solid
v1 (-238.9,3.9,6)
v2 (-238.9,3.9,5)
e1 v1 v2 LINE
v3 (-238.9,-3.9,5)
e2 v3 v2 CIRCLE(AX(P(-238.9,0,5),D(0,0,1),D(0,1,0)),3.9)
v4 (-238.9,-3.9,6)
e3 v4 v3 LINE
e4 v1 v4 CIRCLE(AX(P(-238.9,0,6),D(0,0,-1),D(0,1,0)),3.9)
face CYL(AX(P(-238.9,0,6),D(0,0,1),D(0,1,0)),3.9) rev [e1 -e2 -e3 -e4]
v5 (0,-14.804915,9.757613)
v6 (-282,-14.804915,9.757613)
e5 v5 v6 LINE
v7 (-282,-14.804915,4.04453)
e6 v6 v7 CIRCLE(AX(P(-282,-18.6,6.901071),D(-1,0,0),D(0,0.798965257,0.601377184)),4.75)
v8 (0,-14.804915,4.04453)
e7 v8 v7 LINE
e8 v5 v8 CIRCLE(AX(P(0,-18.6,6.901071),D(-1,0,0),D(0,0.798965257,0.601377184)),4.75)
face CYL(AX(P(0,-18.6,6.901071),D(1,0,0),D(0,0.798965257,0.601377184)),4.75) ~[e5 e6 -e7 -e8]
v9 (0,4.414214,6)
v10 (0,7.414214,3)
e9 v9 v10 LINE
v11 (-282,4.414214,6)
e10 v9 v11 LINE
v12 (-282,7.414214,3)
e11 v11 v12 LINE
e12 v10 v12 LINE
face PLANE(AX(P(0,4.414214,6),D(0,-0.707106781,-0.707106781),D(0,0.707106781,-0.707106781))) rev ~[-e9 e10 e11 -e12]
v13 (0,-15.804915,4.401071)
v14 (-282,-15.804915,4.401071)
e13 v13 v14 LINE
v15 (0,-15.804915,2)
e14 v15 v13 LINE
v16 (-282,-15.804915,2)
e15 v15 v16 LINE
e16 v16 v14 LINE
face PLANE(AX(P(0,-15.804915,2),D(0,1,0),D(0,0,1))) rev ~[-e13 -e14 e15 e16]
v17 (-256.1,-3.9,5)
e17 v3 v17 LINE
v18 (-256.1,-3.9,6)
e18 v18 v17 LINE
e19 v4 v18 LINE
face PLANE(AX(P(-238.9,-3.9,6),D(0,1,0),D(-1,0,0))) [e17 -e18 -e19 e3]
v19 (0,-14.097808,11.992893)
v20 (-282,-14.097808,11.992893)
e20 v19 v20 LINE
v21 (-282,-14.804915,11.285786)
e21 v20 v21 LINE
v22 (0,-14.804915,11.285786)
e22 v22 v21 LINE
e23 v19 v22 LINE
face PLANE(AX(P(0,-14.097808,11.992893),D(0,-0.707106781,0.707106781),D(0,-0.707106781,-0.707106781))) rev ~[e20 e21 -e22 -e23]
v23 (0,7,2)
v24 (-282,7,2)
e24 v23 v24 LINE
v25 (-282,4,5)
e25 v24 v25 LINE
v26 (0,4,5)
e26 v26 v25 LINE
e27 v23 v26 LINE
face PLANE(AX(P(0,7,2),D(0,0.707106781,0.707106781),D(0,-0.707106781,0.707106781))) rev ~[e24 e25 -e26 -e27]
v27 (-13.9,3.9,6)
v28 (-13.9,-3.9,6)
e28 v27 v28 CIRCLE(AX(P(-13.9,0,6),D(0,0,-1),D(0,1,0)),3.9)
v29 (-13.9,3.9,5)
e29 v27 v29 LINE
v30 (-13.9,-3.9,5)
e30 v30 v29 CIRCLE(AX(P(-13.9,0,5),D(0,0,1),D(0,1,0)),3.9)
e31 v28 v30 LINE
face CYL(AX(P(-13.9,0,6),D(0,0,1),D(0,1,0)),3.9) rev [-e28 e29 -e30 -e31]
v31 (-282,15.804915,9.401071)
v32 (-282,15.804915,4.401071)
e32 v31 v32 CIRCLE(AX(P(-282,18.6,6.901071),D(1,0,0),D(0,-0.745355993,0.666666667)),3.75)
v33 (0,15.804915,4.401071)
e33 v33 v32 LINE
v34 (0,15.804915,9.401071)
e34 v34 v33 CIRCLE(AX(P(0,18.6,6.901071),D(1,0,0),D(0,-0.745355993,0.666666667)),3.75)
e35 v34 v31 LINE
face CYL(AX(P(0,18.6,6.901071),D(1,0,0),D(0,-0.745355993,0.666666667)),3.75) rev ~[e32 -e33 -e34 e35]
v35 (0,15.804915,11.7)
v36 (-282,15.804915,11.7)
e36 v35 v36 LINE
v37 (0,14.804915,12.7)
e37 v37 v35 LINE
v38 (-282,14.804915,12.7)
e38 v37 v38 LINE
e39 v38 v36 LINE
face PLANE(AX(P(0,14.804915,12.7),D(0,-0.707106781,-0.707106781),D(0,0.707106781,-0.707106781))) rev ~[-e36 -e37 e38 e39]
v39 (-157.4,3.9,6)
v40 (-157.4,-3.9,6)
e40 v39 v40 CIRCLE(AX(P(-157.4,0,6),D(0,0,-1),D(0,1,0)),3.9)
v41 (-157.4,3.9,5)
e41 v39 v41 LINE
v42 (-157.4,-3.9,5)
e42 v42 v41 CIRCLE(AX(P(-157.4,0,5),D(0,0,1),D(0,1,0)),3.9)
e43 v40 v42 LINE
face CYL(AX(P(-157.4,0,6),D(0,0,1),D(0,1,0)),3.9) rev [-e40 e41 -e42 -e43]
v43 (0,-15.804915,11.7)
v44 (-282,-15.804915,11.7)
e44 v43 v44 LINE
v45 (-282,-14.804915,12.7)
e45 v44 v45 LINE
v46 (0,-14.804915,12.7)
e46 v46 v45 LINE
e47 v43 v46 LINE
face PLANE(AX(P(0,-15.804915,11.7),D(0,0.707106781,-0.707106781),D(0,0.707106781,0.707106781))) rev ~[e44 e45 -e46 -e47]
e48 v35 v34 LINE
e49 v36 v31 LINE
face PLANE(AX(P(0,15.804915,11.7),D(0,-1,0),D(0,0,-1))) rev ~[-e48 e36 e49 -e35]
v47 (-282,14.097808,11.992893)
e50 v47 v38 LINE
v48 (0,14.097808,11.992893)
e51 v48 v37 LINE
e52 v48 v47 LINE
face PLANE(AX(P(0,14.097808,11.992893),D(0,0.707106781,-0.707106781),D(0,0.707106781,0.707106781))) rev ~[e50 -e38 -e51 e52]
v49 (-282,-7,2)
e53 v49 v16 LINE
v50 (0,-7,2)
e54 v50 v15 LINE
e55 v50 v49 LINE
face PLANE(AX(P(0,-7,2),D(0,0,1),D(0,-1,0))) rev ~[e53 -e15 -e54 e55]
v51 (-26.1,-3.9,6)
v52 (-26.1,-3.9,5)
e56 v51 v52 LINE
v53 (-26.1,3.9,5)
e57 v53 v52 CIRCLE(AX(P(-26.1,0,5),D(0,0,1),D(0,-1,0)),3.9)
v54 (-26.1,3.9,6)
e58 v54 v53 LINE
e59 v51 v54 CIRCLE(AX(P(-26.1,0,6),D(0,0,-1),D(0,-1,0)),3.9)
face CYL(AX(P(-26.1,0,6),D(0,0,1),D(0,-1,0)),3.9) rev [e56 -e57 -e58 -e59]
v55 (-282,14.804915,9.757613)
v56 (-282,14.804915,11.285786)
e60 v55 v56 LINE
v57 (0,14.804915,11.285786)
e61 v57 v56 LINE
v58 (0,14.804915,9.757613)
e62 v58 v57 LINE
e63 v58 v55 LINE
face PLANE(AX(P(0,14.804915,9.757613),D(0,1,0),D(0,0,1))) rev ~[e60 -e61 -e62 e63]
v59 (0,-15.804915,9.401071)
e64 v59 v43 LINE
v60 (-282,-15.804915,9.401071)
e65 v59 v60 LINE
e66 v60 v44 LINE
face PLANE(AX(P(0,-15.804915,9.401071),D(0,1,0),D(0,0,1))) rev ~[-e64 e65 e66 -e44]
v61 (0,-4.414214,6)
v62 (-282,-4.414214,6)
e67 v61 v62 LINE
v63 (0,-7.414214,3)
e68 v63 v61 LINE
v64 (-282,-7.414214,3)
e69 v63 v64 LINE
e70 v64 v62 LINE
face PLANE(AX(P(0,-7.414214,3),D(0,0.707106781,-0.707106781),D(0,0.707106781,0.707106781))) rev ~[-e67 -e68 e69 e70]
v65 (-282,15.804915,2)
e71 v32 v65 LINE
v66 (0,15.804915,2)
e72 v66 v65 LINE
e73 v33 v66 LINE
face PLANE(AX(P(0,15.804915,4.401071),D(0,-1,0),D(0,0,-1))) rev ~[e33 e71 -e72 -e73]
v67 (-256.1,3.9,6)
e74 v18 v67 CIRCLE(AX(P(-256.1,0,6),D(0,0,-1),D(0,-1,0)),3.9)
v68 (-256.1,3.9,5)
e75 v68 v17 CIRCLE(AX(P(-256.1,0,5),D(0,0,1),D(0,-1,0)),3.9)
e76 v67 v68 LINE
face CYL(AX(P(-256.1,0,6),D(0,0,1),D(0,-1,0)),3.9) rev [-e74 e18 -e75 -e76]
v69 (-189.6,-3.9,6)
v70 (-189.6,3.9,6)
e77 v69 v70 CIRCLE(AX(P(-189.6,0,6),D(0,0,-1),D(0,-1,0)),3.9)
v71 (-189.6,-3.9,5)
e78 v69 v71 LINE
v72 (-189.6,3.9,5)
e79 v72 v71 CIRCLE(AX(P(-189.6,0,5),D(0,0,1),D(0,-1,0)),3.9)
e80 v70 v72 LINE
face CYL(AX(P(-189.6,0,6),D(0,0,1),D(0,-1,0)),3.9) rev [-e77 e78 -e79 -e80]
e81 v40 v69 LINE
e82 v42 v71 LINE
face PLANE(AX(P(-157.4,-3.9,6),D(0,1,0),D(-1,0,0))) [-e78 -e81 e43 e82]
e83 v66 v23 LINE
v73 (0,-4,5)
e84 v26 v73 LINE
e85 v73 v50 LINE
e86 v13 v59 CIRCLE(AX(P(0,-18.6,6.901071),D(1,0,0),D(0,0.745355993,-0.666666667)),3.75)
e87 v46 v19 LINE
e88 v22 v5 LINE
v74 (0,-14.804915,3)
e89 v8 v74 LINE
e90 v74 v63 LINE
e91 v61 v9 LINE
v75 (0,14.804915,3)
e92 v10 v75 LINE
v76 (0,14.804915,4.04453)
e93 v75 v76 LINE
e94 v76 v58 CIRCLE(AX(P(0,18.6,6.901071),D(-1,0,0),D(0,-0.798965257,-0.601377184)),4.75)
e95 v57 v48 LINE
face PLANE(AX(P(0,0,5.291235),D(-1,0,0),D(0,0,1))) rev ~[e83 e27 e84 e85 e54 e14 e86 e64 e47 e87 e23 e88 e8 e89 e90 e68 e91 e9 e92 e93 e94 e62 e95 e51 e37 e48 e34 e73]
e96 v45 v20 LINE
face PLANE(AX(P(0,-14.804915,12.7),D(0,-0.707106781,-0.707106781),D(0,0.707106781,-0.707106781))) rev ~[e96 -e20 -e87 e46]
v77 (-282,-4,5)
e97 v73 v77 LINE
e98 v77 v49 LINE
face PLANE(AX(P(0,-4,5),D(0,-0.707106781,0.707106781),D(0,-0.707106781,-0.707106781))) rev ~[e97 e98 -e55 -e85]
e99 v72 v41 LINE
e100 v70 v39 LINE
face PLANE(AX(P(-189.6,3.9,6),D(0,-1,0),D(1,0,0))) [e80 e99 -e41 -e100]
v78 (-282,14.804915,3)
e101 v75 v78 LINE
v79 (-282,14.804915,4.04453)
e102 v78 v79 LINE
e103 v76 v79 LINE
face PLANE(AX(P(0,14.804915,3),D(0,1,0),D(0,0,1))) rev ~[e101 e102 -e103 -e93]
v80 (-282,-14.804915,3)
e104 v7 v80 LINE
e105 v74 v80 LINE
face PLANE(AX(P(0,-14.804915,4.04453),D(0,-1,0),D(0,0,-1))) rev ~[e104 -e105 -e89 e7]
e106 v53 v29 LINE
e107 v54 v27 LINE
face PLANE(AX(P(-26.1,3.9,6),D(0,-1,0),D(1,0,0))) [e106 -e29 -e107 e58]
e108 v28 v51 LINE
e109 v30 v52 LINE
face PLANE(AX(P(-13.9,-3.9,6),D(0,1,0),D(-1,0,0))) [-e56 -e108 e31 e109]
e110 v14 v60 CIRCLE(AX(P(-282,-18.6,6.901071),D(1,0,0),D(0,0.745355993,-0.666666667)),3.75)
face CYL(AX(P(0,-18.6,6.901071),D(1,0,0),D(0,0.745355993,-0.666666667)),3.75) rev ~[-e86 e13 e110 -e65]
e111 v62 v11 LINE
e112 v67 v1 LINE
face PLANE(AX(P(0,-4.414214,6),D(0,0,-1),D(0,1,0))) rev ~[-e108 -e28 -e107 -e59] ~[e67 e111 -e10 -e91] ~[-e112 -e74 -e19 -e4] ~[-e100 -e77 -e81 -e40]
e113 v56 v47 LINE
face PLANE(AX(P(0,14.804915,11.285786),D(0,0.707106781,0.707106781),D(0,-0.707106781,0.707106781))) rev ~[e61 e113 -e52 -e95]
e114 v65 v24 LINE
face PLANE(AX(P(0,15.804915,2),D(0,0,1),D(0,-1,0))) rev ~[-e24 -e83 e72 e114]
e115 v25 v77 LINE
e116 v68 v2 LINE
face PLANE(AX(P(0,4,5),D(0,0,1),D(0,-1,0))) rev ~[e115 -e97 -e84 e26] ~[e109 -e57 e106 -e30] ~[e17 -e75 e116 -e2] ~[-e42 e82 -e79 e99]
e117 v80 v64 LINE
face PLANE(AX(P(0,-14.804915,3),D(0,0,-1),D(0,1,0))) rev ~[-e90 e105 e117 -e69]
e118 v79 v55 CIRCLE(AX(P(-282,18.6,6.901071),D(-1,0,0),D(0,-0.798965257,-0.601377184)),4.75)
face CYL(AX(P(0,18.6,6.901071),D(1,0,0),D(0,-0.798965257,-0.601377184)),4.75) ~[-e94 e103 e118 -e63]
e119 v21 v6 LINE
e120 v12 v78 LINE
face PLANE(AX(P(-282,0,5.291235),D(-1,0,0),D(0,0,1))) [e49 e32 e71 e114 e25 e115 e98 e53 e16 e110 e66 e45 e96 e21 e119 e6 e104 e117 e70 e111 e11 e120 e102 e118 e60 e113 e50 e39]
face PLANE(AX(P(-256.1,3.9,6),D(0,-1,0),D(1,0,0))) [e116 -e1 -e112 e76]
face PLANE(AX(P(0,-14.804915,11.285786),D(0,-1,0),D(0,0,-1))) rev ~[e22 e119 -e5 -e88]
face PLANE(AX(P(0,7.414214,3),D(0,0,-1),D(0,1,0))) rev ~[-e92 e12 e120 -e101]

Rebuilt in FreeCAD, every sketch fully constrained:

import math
import FreeCAD as App
import Part
import Sketcher
from FreeCAD import Vector
Q = App.Units.Quantity

doc = App.newDocument("Part")
body = doc.addObject("PartDesign::Body", "Body")

# Sketch on YZ plane
sketch1 = body.newObject("Sketcher::SketchObject", "Sketch")
sketch1.AttachmentSupport = (doc.getObject("YZ_Plane"), [""])
sketch1.MapMode = "FlatFace"
sketch1.addGeometry([
    Part.LineSegment(Vector(15.8, 11.7, 0), Vector(14.8, 12.7, 0)),  # 0
    Part.LineSegment(Vector(14.8, 12.7, 0), Vector(14.1, 12, 0)),  # 1
    Part.LineSegment(Vector(14.1, 12, 0), Vector(14.8, 11.3, 0)),  # 2
    Part.LineSegment(Vector(14.8, 11.3, 0), Vector(14.8, 9.8, 0)),  # 3
    Part.ArcOfCircle(Part.Circle(Vector(18.6, 6.9, 0), Vector(0, 0, 1), 4.8), math.radians(143), math.radians(217)),  # 4
    Part.LineSegment(Vector(14.8, 4, 0), Vector(14.8, 3, 0)),  # 5
    Part.LineSegment(Vector(14.8, 3, 0), Vector(7.4, 3, 0)),  # 6
    Part.LineSegment(Vector(7.4, 3, 0), Vector(4.4, 6, 0)),  # 7
    Part.LineSegment(Vector(4.4, 6, 0), Vector(-4.4, 6, 0)),  # 8
    Part.LineSegment(Vector(-4.4, 6, 0), Vector(-7.4, 3, 0)),  # 9
    Part.LineSegment(Vector(-7.4, 3, 0), Vector(-14.8, 3, 0)),  # 10
    Part.LineSegment(Vector(-14.8, 3, 0), Vector(-14.8, 4, 0)),  # 11
    Part.ArcOfCircle(Part.Circle(Vector(-18.6, 6.9, 0), Vector(0, 0, 1), 4.8), math.radians(-37), math.radians(37)),  # 12
    Part.LineSegment(Vector(-14.8, 9.8, 0), Vector(-14.8, 11.3, 0)),  # 13
    Part.LineSegment(Vector(-14.8, 11.3, 0), Vector(-14.1, 12, 0)),  # 14
    Part.LineSegment(Vector(-14.1, 12, 0), Vector(-14.8, 12.7, 0)),  # 15
    Part.LineSegment(Vector(-14.8, 12.7, 0), Vector(-15.8, 11.7, 0)),  # 16
    Part.LineSegment(Vector(-15.8, 11.7, 0), Vector(-15.8, 9.4, 0)),  # 17
    Part.ArcOfCircle(Part.Circle(Vector(-18.6, 6.9, 0), Vector(0, 0, 1), 3.8), math.radians(-42), math.radians(42)),  # 18
    Part.LineSegment(Vector(-15.8, 4.4, 0), Vector(-15.8, 2, 0)),  # 19
    Part.LineSegment(Vector(-15.8, 2, 0), Vector(-7, 2, 0)),  # 20
    Part.LineSegment(Vector(-7, 2, 0), Vector(-4, 5, 0)),  # 21
    Part.LineSegment(Vector(-4, 5, 0), Vector(4, 5, 0)),  # 22
    Part.LineSegment(Vector(4, 5, 0), Vector(7, 2, 0)),  # 23
    Part.LineSegment(Vector(7, 2, 0), Vector(15.8, 2, 0)),  # 24
    Part.LineSegment(Vector(15.8, 2, 0), Vector(15.8, 4.4, 0)),  # 25
    Part.ArcOfCircle(Part.Circle(Vector(18.6, 6.9, 0), Vector(0, 0, 1), 3.8), math.radians(138), math.radians(222)),  # 26
    Part.LineSegment(Vector(15.8, 9.4, 0), Vector(15.8, 11.7, 0)),  # 27
], False)
sketch1.addConstraint([
    Sketcher.Constraint("Coincident", 0, 2, 1, 1),
    Sketcher.Constraint("Coincident", 1, 2, 2, 1),
    Sketcher.Constraint("Coincident", 2, 2, 3, 1),
    Sketcher.Constraint("Coincident", 3, 2, 4, 1),
    Sketcher.Constraint("Coincident", 4, 2, 5, 1),
    Sketcher.Constraint("Coincident", 5, 2, 6, 1),
    Sketcher.Constraint("Coincident", 6, 2, 7, 1),
    Sketcher.Constraint("Coincident", 7, 2, 8, 1),
    Sketcher.Constraint("Coincident", 8, 2, 9, 1),
    Sketcher.Constraint("Coincident", 9, 2, 10, 1),
    Sketcher.Constraint("Coincident", 10, 2, 11, 1),
    Sketcher.Constraint("Coincident", 11, 2, 12, 1),
    Sketcher.Constraint("Coincident", 12, 2, 13, 1),
    Sketcher.Constraint("Coincident", 13, 2, 14, 1),
    Sketcher.Constraint("Coincident", 14, 2, 15, 1),
    Sketcher.Constraint("Coincident", 15, 2, 16, 1),
    Sketcher.Constraint("Coincident", 16, 2, 17, 1),
    Sketcher.Constraint("Coincident", 17, 2, 18, 2),
    Sketcher.Constraint("Coincident", 18, 1, 19, 1),
    Sketcher.Constraint("Coincident", 19, 2, 20, 1),
    Sketcher.Constraint("Coincident", 20, 2, 21, 1),
    Sketcher.Constraint("Coincident", 21, 2, 22, 1),
    Sketcher.Constraint("Coincident", 22, 2, 23, 1),
    Sketcher.Constraint("Coincident", 23, 2, 24, 1),
    Sketcher.Constraint("Coincident", 24, 2, 25, 1),
    Sketcher.Constraint("Coincident", 25, 2, 26, 2),
    Sketcher.Constraint("Coincident", 26, 1, 27, 1),
    Sketcher.Constraint("Coincident", 27, 2, 0, 1),
    Sketcher.Constraint("Vertical", 3),
    Sketcher.Constraint("Vertical", 5),
    Sketcher.Constraint("Horizontal", 6),
    Sketcher.Constraint("Horizontal", 8),
    Sketcher.Constraint("Horizontal", 10),
    Sketcher.Constraint("Vertical", 11),
    Sketcher.Constraint("Vertical", 13),
    Sketcher.Constraint("Vertical", 17),
    Sketcher.Constraint("Vertical", 19),
    Sketcher.Constraint("Horizontal", 20),
    Sketcher.Constraint("Horizontal", 22),
    Sketcher.Constraint("Horizontal", 24),
    Sketcher.Constraint("Vertical", 25),
    Sketcher.Constraint("Vertical", 27),
    Sketcher.Constraint("Coincident", 18, 3, 12, 3),
    Sketcher.Constraint("Coincident", 26, 3, 4, 3),
    Sketcher.Constraint("Equal", 4, 12),
    Sketcher.Constraint("Equal", 18, 26),
    Sketcher.Constraint("Symmetric", 4, 3, 12, 3, -2),
    Sketcher.Constraint("Symmetric", 6, 2, 9, 2, -2),
    Sketcher.Constraint("Symmetric", 2, 2, 13, 2, -2),
    Sketcher.Constraint("Symmetric", 1, 2, 14, 2, -2),
    Sketcher.Constraint("Symmetric", 0, 2, 15, 2, -2),
    Sketcher.Constraint("Symmetric", 20, 2, 23, 2, -2),
    Sketcher.Constraint("Symmetric", 16, 2, 27, 2, -2),
    Sketcher.Constraint("Perpendicular", 0, 1),
    Sketcher.Constraint("Perpendicular", 1, 2),
    Sketcher.Constraint("Parallel", 2, 7),
    Sketcher.Constraint("Perpendicular", 7, 9),
    Sketcher.Constraint("Parallel", 9, 14),
    Sketcher.Constraint("Parallel", 16, 21),
    Sketcher.Constraint("Perpendicular", 21, 23),
    Sketcher.Constraint("Horizontal", 4, 2, 11, 2),
    Sketcher.Constraint("Horizontal", 18, 1, 25, 2),
    Sketcher.Constraint("Vertical", 0, 2, 2, 2),
    Sketcher.Constraint("Vertical", 3, 2, 4, 2),
    Sketcher.Constraint("Vertical", 17, 2, 18, 1),
    Sketcher.Constraint("Equal", 9, 21),
    Sketcher.Constraint("DistanceX", 22, 1, 22, 2, Q("8 mm")),
    Sketcher.Constraint("Radius", 4, Q("4.75 mm")),
    Sketcher.Constraint("Radius", 18, Q("3.75 mm")),
    Sketcher.Constraint("Distance", 1, Q("1 mm")),
    Sketcher.Constraint("DistanceY", -1, 1, 5, 2, Q("3 mm")),
    Sketcher.Constraint("DistanceY", -1, 1, 7, 2, Q("6 mm")),
    Sketcher.Constraint("DistanceY", -1, 1, 19, 2, Q("2 mm")),
    Sketcher.Constraint("DistanceX", 16, 2, 13, 2, Q("1 mm")),
    Sketcher.Constraint("DistanceY", 18, 1, 17, 2, Q("5 mm")),
    Sketcher.Constraint("DistanceX", -1, 1, 4, 3, Q("18.6 mm")),
    Sketcher.Constraint("DistanceY", -1, 1, 0, 2, Q("12.7 mm")),
    Sketcher.Constraint("DistanceX", 6, 2, 6, 1, Q("7.390701 mm")),
    Sketcher.Constraint("DistanceY", 5, 2, 5, 1, Q("1.04453 mm")),
])
pad1 = body.newObject("PartDesign::Pad", "Pad")
pad1.Profile = sketch1
pad1.Length = 282
pad1.Reversed = True

# Sketch on XY plane
sketch2 = body.newObject("Sketcher::SketchObject", "Sketch001")
sketch2.AttachmentSupport = (doc.getObject("XY_Plane"), [""])
sketch2.MapMode = "FlatFace"
sketch2.AttachmentOffset = App.Placement(Vector(0, 0, 6), App.Rotation())
sketch2.addGeometry([
    Part.LineSegment(Vector(-26.1, -3.9, 0), Vector(-13.9, -3.9, 0)),  # 0
    Part.ArcOfCircle(Part.Circle(Vector(-13.9, 0, 0), Vector(0, 0, 1), 3.9), math.radians(-90), math.radians(90)),  # 1
    Part.LineSegment(Vector(-13.9, 3.9, 0), Vector(-26.1, 3.9, 0)),  # 2
    Part.ArcOfCircle(Part.Circle(Vector(-26.1, 0, 0), Vector(0, 0, 1), 3.9), math.radians(90), math.radians(270)),  # 3
    Part.LineSegment(Vector(-157.4, 3.9, 0), Vector(-189.6, 3.9, 0)),  # 4
    Part.ArcOfCircle(Part.Circle(Vector(-189.6, 0, 0), Vector(0, 0, 1), 3.9), math.radians(90), math.radians(270)),  # 5
    Part.LineSegment(Vector(-189.6, -3.9, 0), Vector(-157.4, -3.9, 0)),  # 6
    Part.ArcOfCircle(Part.Circle(Vector(-157.4, 0, 0), Vector(0, 0, 1), 3.9), math.radians(-90), math.radians(90)),  # 7
    Part.LineSegment(Vector(-238.9, 3.9, 0), Vector(-256.1, 3.9, 0)),  # 8
    Part.ArcOfCircle(Part.Circle(Vector(-256.1, 0, 0), Vector(0, 0, 1), 3.9), math.radians(90), math.radians(270)),  # 9
    Part.LineSegment(Vector(-256.1, -3.9, 0), Vector(-238.9, -3.9, 0)),  # 10
    Part.ArcOfCircle(Part.Circle(Vector(-238.9, 0, 0), Vector(0, 0, 1), 3.9), math.radians(-90), math.radians(90)),  # 11
], False)
sketch2.addConstraint([
    Sketcher.Constraint("Tangent", 0, 2, 1, 1),
    Sketcher.Constraint("Tangent", 1, 2, 2, 1),
    Sketcher.Constraint("Tangent", 2, 2, 3, 1),
    Sketcher.Constraint("Tangent", 3, 2, 0, 1),
    Sketcher.Constraint("Tangent", 4, 2, 5, 1),
    Sketcher.Constraint("Tangent", 5, 2, 6, 1),
    Sketcher.Constraint("Tangent", 6, 2, 7, 1),
    Sketcher.Constraint("Tangent", 7, 2, 4, 1),
    Sketcher.Constraint("Tangent", 8, 2, 9, 1),
    Sketcher.Constraint("Tangent", 9, 2, 10, 1),
    Sketcher.Constraint("Tangent", 10, 2, 11, 1),
    Sketcher.Constraint("Tangent", 11, 2, 8, 1),
    Sketcher.Constraint("Horizontal", 0),
    Sketcher.Constraint("Horizontal", 2),
    Sketcher.Constraint("Horizontal", 4),
    Sketcher.Constraint("Horizontal", 6),
    Sketcher.Constraint("Horizontal", 8),
    Sketcher.Constraint("Horizontal", 10),
    Sketcher.Constraint("Equal", 3, 5),
    Sketcher.Constraint("Equal", 7, 9),
    Sketcher.Constraint("PointOnObject", 1, 3, -1),
    Sketcher.Constraint("PointOnObject", 5, 3, -1),
    Sketcher.Constraint("PointOnObject", 9, 3, -1),
    Sketcher.Constraint("Radius", 1, Q("3.9 mm")),
    Sketcher.Constraint("DistanceX", 0, 1, 0, 2, Q("12.2 mm")),
    Sketcher.Constraint("DistanceX", 4, 2, 4, 1, Q("32.2 mm")),
    Sketcher.Constraint("DistanceX", 8, 2, 8, 1, Q("17.2 mm")),
    Sketcher.Constraint("DistanceX", 9, 3, 3, 3, Q("230 mm")),
    Sketcher.Constraint("DistanceX", 1, 3, -1, 1, Q("13.9 mm")),
    Sketcher.Constraint("DistanceX", 5, 3, -1, 1, Q("189.6 mm")),
])
pocket1 = body.newObject("PartDesign::Pocket", "Pocket")
pocket1.Profile = sketch2
pocket1.Type = "ThroughAll"

doc.recompute()
